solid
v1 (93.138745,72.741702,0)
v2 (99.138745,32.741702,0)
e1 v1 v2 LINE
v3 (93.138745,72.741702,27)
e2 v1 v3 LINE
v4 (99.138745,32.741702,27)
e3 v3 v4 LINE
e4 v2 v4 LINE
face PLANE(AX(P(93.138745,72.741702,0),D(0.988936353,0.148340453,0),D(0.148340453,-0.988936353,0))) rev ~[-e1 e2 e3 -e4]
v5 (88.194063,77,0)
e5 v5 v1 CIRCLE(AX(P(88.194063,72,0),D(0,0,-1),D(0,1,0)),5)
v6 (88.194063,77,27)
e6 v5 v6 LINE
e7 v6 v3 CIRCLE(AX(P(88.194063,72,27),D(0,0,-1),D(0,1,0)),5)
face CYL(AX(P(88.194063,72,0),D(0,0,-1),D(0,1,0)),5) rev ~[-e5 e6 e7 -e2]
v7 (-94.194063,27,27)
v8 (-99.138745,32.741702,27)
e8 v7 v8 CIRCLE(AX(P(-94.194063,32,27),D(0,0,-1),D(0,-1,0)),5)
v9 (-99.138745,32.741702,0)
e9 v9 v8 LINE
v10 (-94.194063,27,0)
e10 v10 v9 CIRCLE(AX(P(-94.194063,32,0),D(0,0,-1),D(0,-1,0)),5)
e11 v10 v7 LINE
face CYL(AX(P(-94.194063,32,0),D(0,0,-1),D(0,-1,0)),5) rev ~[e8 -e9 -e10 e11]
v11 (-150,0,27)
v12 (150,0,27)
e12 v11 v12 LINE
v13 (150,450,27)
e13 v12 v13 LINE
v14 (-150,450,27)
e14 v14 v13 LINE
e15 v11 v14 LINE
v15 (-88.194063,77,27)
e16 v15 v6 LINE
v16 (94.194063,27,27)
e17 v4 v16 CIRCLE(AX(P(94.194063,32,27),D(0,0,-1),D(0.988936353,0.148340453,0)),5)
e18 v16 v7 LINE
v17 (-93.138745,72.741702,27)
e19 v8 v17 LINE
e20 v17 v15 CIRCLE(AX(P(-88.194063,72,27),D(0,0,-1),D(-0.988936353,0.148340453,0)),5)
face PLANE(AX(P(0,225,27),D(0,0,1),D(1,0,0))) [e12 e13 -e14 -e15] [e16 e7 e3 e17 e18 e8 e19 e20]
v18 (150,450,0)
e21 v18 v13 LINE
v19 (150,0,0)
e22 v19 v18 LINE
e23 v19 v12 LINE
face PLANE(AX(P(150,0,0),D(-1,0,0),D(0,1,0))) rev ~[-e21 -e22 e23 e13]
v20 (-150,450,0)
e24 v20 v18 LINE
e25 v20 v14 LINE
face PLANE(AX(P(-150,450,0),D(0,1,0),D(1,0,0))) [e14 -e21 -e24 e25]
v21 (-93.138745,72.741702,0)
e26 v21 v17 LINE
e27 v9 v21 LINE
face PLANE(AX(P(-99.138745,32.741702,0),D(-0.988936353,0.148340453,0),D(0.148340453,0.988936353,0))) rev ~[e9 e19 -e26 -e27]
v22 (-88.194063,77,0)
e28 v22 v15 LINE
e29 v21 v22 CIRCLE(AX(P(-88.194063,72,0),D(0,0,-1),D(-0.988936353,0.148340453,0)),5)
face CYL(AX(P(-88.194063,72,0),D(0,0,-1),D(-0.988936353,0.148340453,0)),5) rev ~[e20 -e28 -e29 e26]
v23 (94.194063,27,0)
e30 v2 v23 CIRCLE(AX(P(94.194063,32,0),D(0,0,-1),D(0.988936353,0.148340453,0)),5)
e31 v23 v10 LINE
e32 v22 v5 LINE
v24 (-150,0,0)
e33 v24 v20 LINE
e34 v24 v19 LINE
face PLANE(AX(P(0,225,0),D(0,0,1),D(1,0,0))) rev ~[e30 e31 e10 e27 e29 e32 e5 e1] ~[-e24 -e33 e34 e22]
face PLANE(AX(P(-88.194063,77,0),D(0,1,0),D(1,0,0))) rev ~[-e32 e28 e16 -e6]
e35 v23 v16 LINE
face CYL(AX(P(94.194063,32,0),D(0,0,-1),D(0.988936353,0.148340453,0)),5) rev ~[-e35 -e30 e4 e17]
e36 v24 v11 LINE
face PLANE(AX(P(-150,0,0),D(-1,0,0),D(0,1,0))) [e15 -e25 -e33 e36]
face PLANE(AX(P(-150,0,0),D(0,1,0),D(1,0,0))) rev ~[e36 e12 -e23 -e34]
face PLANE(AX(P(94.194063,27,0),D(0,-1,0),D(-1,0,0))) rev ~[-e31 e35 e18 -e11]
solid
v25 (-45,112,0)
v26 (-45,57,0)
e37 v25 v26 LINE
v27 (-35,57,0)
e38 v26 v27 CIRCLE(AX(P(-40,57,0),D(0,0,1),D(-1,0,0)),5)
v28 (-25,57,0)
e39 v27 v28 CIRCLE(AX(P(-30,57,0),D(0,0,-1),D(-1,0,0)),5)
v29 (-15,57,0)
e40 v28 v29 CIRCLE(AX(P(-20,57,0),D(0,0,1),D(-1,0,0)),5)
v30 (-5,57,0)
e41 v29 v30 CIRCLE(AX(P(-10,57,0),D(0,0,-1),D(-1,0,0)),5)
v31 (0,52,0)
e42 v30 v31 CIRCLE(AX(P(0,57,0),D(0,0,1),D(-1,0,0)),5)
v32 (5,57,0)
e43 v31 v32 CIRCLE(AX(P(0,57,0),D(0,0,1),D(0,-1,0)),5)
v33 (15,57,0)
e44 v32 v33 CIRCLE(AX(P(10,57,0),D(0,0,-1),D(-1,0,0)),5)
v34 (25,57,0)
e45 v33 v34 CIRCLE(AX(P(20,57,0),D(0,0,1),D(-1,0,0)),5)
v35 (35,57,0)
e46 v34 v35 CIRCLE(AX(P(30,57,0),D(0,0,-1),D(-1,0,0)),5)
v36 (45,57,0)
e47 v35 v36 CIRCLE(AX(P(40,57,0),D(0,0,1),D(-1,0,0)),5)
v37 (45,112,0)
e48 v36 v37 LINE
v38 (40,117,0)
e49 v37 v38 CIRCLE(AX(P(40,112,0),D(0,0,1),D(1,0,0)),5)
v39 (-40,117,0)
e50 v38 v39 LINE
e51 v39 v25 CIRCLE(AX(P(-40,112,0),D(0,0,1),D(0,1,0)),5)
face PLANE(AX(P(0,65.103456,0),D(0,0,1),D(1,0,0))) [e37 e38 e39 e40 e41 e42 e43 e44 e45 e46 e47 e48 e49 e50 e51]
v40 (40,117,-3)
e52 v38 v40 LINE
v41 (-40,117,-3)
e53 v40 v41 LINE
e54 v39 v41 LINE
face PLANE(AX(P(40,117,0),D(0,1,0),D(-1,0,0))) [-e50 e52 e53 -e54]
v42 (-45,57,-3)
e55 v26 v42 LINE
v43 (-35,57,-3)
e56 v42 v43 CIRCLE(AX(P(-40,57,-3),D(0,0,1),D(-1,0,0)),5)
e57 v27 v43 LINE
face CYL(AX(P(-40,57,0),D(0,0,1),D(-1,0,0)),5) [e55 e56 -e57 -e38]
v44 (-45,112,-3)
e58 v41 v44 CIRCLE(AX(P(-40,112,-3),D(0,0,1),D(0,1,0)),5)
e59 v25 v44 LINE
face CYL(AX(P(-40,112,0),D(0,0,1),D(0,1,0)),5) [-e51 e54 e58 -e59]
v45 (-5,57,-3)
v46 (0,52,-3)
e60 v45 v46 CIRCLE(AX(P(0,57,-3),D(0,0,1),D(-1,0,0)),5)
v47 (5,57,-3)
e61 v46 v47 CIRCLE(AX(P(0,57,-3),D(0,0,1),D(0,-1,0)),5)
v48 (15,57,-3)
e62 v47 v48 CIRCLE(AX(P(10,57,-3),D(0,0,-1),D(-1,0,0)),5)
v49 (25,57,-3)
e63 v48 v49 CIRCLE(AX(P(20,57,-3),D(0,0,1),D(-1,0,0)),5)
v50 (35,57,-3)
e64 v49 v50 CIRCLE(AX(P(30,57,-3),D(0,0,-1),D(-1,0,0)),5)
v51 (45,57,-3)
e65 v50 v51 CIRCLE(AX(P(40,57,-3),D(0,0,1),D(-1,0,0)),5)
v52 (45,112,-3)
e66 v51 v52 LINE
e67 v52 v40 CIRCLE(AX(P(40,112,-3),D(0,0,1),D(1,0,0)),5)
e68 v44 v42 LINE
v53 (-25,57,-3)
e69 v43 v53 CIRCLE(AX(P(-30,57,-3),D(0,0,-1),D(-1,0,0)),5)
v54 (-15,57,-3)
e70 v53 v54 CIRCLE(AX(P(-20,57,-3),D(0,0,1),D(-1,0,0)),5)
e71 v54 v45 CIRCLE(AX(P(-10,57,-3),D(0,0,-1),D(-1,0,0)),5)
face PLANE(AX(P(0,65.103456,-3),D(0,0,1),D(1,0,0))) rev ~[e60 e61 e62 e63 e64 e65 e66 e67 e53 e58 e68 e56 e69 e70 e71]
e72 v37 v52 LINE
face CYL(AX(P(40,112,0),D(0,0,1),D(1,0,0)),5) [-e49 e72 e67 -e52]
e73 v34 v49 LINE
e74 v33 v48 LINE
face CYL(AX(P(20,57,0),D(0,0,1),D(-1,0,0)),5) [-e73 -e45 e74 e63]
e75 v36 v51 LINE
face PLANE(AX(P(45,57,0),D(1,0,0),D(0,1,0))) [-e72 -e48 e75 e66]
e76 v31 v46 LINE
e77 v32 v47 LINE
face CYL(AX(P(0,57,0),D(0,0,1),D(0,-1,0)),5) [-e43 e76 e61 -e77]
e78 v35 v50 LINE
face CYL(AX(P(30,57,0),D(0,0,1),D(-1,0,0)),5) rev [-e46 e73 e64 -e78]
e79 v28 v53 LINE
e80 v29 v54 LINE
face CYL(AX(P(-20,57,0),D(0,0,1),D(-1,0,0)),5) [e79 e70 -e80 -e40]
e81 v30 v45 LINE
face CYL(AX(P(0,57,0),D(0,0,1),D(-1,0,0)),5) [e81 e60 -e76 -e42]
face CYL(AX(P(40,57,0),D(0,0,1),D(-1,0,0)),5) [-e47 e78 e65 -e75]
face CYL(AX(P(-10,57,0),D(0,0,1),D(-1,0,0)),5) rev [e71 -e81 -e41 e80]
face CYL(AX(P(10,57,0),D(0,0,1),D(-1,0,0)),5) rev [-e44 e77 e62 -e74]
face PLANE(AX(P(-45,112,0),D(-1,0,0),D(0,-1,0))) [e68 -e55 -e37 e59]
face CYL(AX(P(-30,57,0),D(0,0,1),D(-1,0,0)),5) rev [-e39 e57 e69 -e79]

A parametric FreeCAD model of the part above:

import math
import FreeCAD as App
import Part
import Sketcher

V = App.Vector

doc = App.newDocument("Part")
body = doc.addObject("PartDesign::Body", "Body")

# Sketch on XY plane
sketch1 = body.newObject("Sketcher::SketchObject", "Sketch")
sketch1.AttachmentSupport = (doc.getObject("XY_Plane"), [""])
sketch1.MapMode = "FlatFace"
sketch1.addGeometry([
    Part.LineSegment(V(-150, 450, 0), V(-150, 0, 0)),  # 0
    Part.LineSegment(V(-150, 0, 0), V(150, 0, 0)),  # 1
    Part.LineSegment(V(150, 0, 0), V(150, 450, 0)),  # 2
    Part.LineSegment(V(150, 450, 0), V(-150, 450, 0)),  # 3
    Part.LineSegment(V(94, 27, 0), V(-94, 27, 0)),  # 4
    Part.ArcOfCircle(Part.Circle(V(-94, 32, 0), V(0, 0, 1), 5), math.radians(171), math.radians(270)),  # 5
    Part.LineSegment(V(-99, 33, 0), V(-93, 73, 0)),  # 6
    Part.ArcOfCircle(Part.Circle(V(-88, 72, 0), V(0, 0, 1), 5), math.radians(90), math.radians(171)),  # 7
    Part.LineSegment(V(-88, 77, 0), V(88, 77, 0)),  # 8
    Part.ArcOfCircle(Part.Circle(V(88, 72, 0), V(0, 0, 1), 5), math.radians(9), math.radians(90)),  # 9
    Part.LineSegment(V(93, 73, 0), V(99, 33, 0)),  # 10
    Part.ArcOfCircle(Part.Circle(V(94, 32, 0), V(0, 0, 1), 5), math.radians(-90), math.radians(9)),  # 11
], False)
sketch1.addConstraint([
    Sketcher.Constraint("Coincident", 0, 2, 1, 1),
    Sketcher.Constraint("Coincident", 1, 2, 2, 1),
    Sketcher.Constraint("Coincident", 2, 2, 3, 1),
    Sketcher.Constraint("Coincident", 3, 2, 0, 1),
    Sketcher.Constraint("Tangent", 4, 2, 5, 2),
    Sketcher.Constraint("Tangent", 5, 1, 6, 1),
    Sketcher.Constraint("Tangent", 6, 2, 7, 2),
    Sketcher.Constraint("Tangent", 7, 1, 8, 1),
    Sketcher.Constraint("Tangent", 8, 2, 9, 2),
    Sketcher.Constraint("Tangent", 9, 1, 10, 1),
    Sketcher.Constraint("Tangent", 10, 2, 11, 2),
    Sketcher.Constraint("Tangent", 11, 1, 4, 1),
    Sketcher.Constraint("Vertical", 0),
    Sketcher.Constraint("Horizontal", 1),
    Sketcher.Constraint("Vertical", 2),
    Sketcher.Constraint("Horizontal", 3),
    Sketcher.Constraint("Horizontal", 4),
    Sketcher.Constraint("Horizontal", 8),
    Sketcher.Constraint("Equal", 5, 7),
    Sketcher.Constraint("Equal", 7, 9),
    Sketcher.Constraint("Equal", 9, 11),
    Sketcher.Constraint("Symmetric", 0, 2, 1, 2, -1, 1),
    Sketcher.Constraint("Symmetric", 6, 2, 9, 1, -2),
    Sketcher.Constraint("Radius", 5, 5.0),
    Sketcher.Constraint("DistanceX", 1, 1, 1, 2, 300.0),
    Sketcher.Constraint("DistanceY", 0, 2, 0, 1, 450.0),
    Sketcher.Constraint("DistanceY", -1, 1, 5, 3, 32.0),
    Sketcher.Constraint("DistanceY", -1, 1, 7, 3, 72.0),
    Sketcher.Constraint("DistanceX", 5, 3, 7, 3, 6.0),
    Sketcher.Constraint("DistanceX", 4, 2, 4, 1, 188.388126),
])
pad1 = body.newObject("PartDesign::Pad", "Pad")
pad1.Profile = sketch1
pad1.Length = 27
body2 = doc.addObject("PartDesign::Body", "Body001")

# Sketch on XY plane
sketch2 = body2.newObject("Sketcher::SketchObject", "Sketch001")
sketch2.AttachmentSupport = (doc.getObject("XY_Plane001"), [""])
sketch2.MapMode = "FlatFace"
sketch2.addGeometry([
    Part.ArcOfCircle(Part.Circle(V(-40, 57, 0), V(0, 0, 1), 5), math.radians(180), math.radians(360)),  # 0
    Part.ArcOfCircle(Part.Circle(V(-30, 57, 0), V(0, 0, 1), 5), math.radians(0), math.radians(180)),  # 1
    Part.ArcOfCircle(Part.Circle(V(-20, 57, 0), V(0, 0, 1), 5), math.radians(180), math.radians(360)),  # 2
    Part.ArcOfCircle(Part.Circle(V(-10, 57, 0), V(0, 0, 1), 5), math.radians(0), math.radians(180)),  # 3
    Part.ArcOfCircle(Part.Circle(V(0, 57, 0), V(0, 0, 1), 5), math.radians(180), math.radians(270)),  # 4
    Part.ArcOfCircle(Part.Circle(V(0, 57, 0), V(0, 0, 1), 5), math.radians(-90), math.radians(0)),  # 5
    Part.ArcOfCircle(Part.Circle(V(10, 57, 0), V(0, 0, 1), 5), math.radians(0), math.radians(180)),  # 6
    Part.ArcOfCircle(Part.Circle(V(20, 57, 0), V(0, 0, 1), 5), math.radians(180), math.radians(360)),  # 7
    Part.ArcOfCircle(Part.Circle(V(30, 57, 0), V(0, 0, 1), 5), math.radians(0), math.radians(180)),  # 8
    Part.ArcOfCircle(Part.Circle(V(40, 57, 0), V(0, 0, 1), 5), math.radians(180), math.radians(360)),  # 9
    Part.LineSegment(V(45, 57, 0), V(45, 112, 0)),  # 10
    Part.ArcOfCircle(Part.Circle(V(40, 112, 0), V(0, 0, 1), 5), math.radians(0), math.radians(90)),  # 11
    Part.LineSegment(V(40, 117, 0), V(-40, 117, 0)),  # 12
    Part.ArcOfCircle(Part.Circle(V(-40, 112, 0), V(0, 0, 1), 5), math.radians(90), math.radians(180)),  # 13
    Part.LineSegment(V(-45, 112, 0), V(-45, 57, 0)),  # 14
], False)
sketch2.addConstraint([
    Sketcher.Constraint("Tangent", 0, 2, 1, 2),
    Sketcher.Constraint("Tangent", 1, 1, 2, 1),
    Sketcher.Constraint("Tangent", 2, 2, 3, 2),
    Sketcher.Constraint("Tangent", 3, 1, 4, 1),
    Sketcher.Constraint("Tangent", 4, 2, 5, 1),
    Sketcher.Constraint("Tangent", 5, 2, 6, 2),
    Sketcher.Constraint("Tangent", 6, 1, 7, 1),
    Sketcher.Constraint("Tangent", 7, 2, 8, 2),
    Sketcher.Constraint("Tangent", 8, 1, 9, 1),
    Sketcher.Constraint("Tangent", 9, 2, 10, 1),
    Sketcher.Constraint("Tangent", 10, 2, 11, 1),
    Sketcher.Constraint("Tangent", 11, 2, 12, 1),
    Sketcher.Constraint("Tangent", 12, 2, 13, 1),
    Sketcher.Constraint("Tangent", 13, 2, 14, 1),
    Sketcher.Constraint("Tangent", 14, 2, 0, 1),
    Sketcher.Constraint("Vertical", 10),
    Sketcher.Constraint("Horizontal", 12),
    Sketcher.Constraint("Vertical", 14),
    Sketcher.Constraint("Equal", 0, 1),
    Sketcher.Constraint("Equal", 1, 2),
    Sketcher.Constraint("Equal", 2, 3),
    Sketcher.Constraint("Equal", 3, 4),
    Sketcher.Constraint("Equal", 4, 5),
    Sketcher.Constraint("Equal", 5, 6),
    Sketcher.Constraint("Equal", 6, 7),
    Sketcher.Constraint("Equal", 7, 8),
    Sketcher.Constraint("Equal", 8, 9),
    Sketcher.Constraint("Equal", 9, 11),
    Sketcher.Constraint("Equal", 11, 13),
    Sketcher.Constraint("Symmetric", 3, 3, 6, 3, -2),
    Sketcher.Constraint("PointOnObject", 4, 2, -2),
    Sketcher.Constraint("Horizontal", 0, 3, 1, 3),
    Sketcher.Constraint("Horizontal", 1, 3, 2, 3),
    Sketcher.Constraint("Horizontal", 2, 3, 3, 3),
    Sketcher.Constraint("Horizontal", 3, 3, 4, 3),
    Sketcher.Constraint("Horizontal", 6, 3, 7, 3),
    Sketcher.Constraint("Horizontal", 7, 3, 8, 3),
    Sketcher.Constraint("Horizontal", 8, 3, 9, 3),
    Sketcher.Constraint("Radius", 0, 5.0),
    Sketcher.Constraint("DistanceY", 10, 1, 10, 2, 55.0),
    Sketcher.Constraint("DistanceY", -1, 1, 0, 3, 57.0),
])
pad2 = body2.newObject("PartDesign::Pad", "Pad001")
pad2.Profile = sketch2
pad2.Length = 3
pad2.Reversed = True

doc.recompute()
